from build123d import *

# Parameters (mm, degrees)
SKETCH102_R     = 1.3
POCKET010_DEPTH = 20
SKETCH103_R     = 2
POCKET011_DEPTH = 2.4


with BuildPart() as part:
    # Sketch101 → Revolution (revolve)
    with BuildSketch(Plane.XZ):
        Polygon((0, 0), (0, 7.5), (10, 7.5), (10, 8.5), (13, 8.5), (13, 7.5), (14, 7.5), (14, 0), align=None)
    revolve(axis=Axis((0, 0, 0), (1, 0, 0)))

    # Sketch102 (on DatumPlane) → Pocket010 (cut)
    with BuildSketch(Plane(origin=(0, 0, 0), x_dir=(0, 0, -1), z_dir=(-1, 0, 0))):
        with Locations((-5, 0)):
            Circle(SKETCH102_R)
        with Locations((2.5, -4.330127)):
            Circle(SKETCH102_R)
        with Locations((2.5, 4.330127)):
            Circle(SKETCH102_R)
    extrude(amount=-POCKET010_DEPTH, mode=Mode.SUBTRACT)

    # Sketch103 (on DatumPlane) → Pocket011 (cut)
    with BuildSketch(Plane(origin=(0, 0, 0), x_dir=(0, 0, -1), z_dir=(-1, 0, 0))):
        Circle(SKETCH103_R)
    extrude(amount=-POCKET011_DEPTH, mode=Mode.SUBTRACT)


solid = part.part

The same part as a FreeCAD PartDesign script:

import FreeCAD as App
import Part
import Sketcher
from FreeCAD import Vector
Q = App.Units.Quantity


def add_polygon(sketch, points):
    """Adds a closed chain of lines whose ends are joined by coincident constraints."""
    first, n = sketch.GeometryCount, len(points)
    for a, b in zip(points, points[1:] + points[:1]):
        sketch.addGeometry(Part.LineSegment(App.Vector(*a, 0), App.Vector(*b, 0)), False)
    for i in range(n):
        sketch.addConstraint(Sketcher.Constraint("Coincident", first + i, 2, first + (i + 1) % n, 1))

doc = App.newDocument("Part")
body = doc.addObject("PartDesign::Body", "Body")

sketch1 = doc.addObject("Sketcher::SketchObject", "Sketch")
body.addObject(sketch1)
sketch1.AttachmentSupport = (doc.XZ_Plane, [""])
sketch1.MapMode = "FlatFace"
add_polygon(sketch1, [(0, 7.5), (0, 0), (14, 0), (14, 7.5), (13, 7.5), (13, 8.5), (10, 8.5), (10, 7.5)])
sketch1.addConstraint([
    Sketcher.Constraint("Vertical", 0),
    Sketcher.Constraint("Horizontal", 1),
    Sketcher.Constraint("Vertical", 2),
    Sketcher.Constraint("Horizontal", 3),
    Sketcher.Constraint("Vertical", 4),
    Sketcher.Constraint("Horizontal", 5),
    Sketcher.Constraint("Vertical", 6),
    Sketcher.Constraint("Horizontal", 7),
    Sketcher.Constraint("Coincident", 0, 2, -1, 1),
    Sketcher.Constraint("Horizontal", 3, 2, 6, 2),
    Sketcher.Constraint("Equal", 3, 4),
    Sketcher.Constraint("DistanceX", 1, 1, 1, 2, Q("14 mm")),
    Sketcher.Constraint("DistanceX", 3, 2, 3, 1, Q("1 mm")),
    Sketcher.Constraint("DistanceX", 5, 2, 5, 1, Q("3 mm")),
    Sketcher.Constraint("DistanceY", 0, 2, 0, 1, Q("7.5 mm")),
])
revolution = doc.addObject("PartDesign::Revolution", "Revolution")
body.addObject(revolution)
revolution.Profile = sketch1
revolution.ReferenceAxis = (sketch1, ["H_Axis"])
revolution.Angle = 360

sketch2 = doc.addObject("Sketcher::SketchObject", "Sketch001")
body.addObject(sketch2)
sketch2.AttachmentSupport = (doc.YZ_Plane, [""])
sketch2.MapMode = "FlatFace"
sketch2.addGeometry([
    Part.Circle(Vector(0, 5, 0), Vector(0, 0, 1), 1.3),
    Part.Circle(Vector(4.3, -2.5, 0), Vector(0, 0, 1), 1.3),
    Part.Circle(Vector(-4.3, -2.5, 0), Vector(0, 0, 1), 1.3),
], False)
sketch2.addConstraint([
    Sketcher.Constraint("Equal", 0, 1),
    Sketcher.Constraint("Equal", 1, 2),
    Sketcher.Constraint("Symmetric", 1, 3, 2, 3, -2),
    Sketcher.Constraint("PointOnObject", 0, 3, -2),
    Sketcher.Constraint("Diameter", 0, Q("2.6 mm")),
    Sketcher.Constraint("DistanceY", -1, 1, 0, 3, Q("5 mm")),
    Sketcher.Constraint("DistanceY", 1, 3, -1, 1, Q("2.5 mm")),
    Sketcher.Constraint("DistanceX", -1, 1, 1, 3, Q("4.330127 mm")),
])
pocket1 = doc.addObject("PartDesign::Pocket", "Pocket")
body.addObject(pocket1)
pocket1.Profile = sketch2
pocket1.Length = 20
pocket1.Reversed = True

sketch3 = doc.addObject("Sketcher::SketchObject", "Sketch002")
body.addObject(sketch3)
sketch3.AttachmentSupport = (doc.YZ_Plane, [""])
sketch3.MapMode = "FlatFace"
sketch3.addGeometry(Part.Circle(Vector(0, 0, 0), Vector(0, 0, 1), 2), False)
sketch3.addConstraint([
    Sketcher.Constraint("Coincident", 0, 3, -1, 1),
    Sketcher.Constraint("Diameter", 0, Q("4 mm")),
])
pocket2 = doc.addObject("PartDesign::Pocket", "Pocket001")
body.addObject(pocket2)
pocket2.Profile = sketch3
pocket2.Length = 2.4
pocket2.Reversed = True

doc.recompute()
